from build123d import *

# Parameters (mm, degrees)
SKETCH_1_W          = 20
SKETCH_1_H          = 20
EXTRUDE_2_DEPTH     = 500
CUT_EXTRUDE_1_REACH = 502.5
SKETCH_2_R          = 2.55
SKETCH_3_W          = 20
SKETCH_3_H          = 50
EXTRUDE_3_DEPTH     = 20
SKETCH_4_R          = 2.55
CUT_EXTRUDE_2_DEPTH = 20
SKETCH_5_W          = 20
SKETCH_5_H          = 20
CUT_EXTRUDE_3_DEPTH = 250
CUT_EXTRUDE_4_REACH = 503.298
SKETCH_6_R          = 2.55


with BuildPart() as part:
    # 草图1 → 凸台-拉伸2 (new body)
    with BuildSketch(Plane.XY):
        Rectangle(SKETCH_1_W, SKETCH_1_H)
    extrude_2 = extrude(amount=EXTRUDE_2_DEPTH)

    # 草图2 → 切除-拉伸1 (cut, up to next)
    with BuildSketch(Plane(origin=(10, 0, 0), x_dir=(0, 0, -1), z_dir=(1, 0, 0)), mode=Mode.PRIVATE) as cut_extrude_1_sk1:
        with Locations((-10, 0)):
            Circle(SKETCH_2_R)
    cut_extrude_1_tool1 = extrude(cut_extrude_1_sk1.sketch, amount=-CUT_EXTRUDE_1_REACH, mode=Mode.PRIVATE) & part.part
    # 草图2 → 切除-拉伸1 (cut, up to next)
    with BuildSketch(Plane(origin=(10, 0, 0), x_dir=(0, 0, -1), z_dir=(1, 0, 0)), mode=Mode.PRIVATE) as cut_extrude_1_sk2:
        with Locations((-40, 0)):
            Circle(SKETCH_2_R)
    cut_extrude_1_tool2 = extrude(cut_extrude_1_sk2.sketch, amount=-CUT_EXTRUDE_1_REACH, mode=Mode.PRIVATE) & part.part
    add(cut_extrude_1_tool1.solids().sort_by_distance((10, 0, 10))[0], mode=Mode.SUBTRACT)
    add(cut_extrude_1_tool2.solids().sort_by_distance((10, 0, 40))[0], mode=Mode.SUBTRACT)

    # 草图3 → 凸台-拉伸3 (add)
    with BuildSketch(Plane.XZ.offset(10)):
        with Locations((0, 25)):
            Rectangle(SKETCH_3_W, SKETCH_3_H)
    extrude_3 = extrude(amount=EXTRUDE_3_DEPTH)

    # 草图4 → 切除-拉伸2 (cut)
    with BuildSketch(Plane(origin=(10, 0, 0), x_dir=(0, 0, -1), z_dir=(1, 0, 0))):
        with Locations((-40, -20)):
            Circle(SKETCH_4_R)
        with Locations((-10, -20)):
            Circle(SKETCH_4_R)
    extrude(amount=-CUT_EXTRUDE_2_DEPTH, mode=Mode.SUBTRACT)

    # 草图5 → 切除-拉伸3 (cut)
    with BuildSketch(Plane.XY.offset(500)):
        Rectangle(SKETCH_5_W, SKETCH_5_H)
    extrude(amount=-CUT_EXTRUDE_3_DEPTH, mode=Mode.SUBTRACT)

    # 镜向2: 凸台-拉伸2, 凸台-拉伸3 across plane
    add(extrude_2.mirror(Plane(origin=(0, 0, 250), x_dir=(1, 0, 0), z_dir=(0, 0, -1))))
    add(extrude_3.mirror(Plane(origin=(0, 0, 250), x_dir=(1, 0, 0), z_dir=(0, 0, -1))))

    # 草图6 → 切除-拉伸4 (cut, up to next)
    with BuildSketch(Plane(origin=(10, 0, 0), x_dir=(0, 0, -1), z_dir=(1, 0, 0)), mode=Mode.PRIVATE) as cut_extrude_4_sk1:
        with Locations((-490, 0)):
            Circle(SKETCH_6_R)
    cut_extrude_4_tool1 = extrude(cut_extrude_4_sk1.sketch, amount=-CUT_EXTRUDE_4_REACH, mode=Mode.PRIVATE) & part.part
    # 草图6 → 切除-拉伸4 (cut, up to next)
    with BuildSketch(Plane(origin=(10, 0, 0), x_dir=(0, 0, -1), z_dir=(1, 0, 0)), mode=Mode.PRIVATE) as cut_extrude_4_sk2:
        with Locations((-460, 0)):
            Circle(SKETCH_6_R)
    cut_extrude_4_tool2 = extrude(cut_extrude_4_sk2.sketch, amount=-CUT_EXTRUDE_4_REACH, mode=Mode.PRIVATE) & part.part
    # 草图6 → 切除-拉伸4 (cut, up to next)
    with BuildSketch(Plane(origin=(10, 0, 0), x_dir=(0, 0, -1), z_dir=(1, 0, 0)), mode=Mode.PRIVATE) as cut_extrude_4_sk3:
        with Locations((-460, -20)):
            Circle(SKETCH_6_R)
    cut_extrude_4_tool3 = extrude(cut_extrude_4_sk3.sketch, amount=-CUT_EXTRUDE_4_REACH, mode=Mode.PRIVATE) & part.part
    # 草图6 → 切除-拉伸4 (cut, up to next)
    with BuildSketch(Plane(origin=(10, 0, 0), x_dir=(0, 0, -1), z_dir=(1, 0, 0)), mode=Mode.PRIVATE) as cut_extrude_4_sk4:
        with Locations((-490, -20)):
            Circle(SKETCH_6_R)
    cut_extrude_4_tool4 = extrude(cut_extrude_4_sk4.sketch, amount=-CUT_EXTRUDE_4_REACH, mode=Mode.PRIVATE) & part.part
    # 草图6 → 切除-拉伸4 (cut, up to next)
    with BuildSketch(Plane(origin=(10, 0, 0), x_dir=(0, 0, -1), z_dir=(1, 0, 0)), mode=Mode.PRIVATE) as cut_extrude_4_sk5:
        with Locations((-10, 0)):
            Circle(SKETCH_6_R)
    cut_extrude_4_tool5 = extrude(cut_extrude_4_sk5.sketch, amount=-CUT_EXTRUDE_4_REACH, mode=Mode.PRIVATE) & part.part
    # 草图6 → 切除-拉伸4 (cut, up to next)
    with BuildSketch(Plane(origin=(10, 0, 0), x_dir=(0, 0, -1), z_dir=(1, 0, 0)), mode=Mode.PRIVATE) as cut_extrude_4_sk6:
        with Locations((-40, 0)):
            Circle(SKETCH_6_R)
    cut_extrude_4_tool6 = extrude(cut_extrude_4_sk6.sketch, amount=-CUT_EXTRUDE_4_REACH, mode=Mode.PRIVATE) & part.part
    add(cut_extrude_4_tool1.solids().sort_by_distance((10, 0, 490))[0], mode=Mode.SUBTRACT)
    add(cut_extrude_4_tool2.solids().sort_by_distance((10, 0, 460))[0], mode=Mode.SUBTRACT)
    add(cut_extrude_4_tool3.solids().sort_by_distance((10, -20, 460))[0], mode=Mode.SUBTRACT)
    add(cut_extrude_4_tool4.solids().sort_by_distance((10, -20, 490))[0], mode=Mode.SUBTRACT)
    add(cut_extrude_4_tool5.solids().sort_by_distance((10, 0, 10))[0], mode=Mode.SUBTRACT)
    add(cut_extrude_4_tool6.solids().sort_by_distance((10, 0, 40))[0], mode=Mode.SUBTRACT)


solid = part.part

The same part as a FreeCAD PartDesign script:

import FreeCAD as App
import Part
import Sketcher
from FreeCAD import Vector

doc = App.newDocument("Part")
params = doc.addObject("Spreadsheet::Sheet", "Params")
for row, (alias, value) in enumerate([
    ("sketch1_width", "20 mm"),
    ("pad1_length", "500 mm"),
    ("sketch2_diameter", "5.1 mm"),
    ("sketch3_diameter", "5.1 mm"),
    ("sketch4_width", "20 mm"),
    ("sketch4_height", "50 mm"),
    ("pad2_length", "20 mm"),
    ("sketch5_diameter", "5.1 mm"),
    ("pocket3_length", "20 mm"),
    ("sketch6_width", "20 mm"),
    ("pocket4_length", "250 mm"),
    ("sketch7_diameter", "5.1 mm"),
    ("sketch8_diameter", "5.1 mm"),
    ("sketch9_diameter", "5.1 mm"),
    ("sketch10_diameter", "5.1 mm"),
    ("sketch11_diameter", "5.1 mm"),
    ("sketch12_diameter", "5.1 mm"),
], start=1):
    params.set(f"A{row}", alias)
    params.set(f"B{row}", "=" + value)
    params.setAlias(f"B{row}", alias)

body = doc.addObject("PartDesign::Body", "Body")

sketch1 = body.newObject("Sketcher::SketchObject", "Sketch")
sketch1.AttachmentSupport = (doc.getObject("XY_Plane"), [""])
sketch1.MapMode = "FlatFace"
sketch1.addGeometry([
    Part.LineSegment(Vector(-10, 10, 0), Vector(-10, -10, 0)),
    Part.LineSegment(Vector(-10, -10, 0), Vector(10, -10, 0)),
    Part.LineSegment(Vector(10, -10, 0), Vector(10, 10, 0)),
    Part.LineSegment(Vector(10, 10, 0), Vector(-10, 10, 0)),
], False)
sketch1.addConstraint([
    Sketcher.Constraint("Coincident", 0, 2, 1, 1),
    Sketcher.Constraint("Coincident", 1, 2, 2, 1),
    Sketcher.Constraint("Coincident", 2, 2, 3, 1),
    Sketcher.Constraint("Coincident", 3, 2, 0, 1),
    Sketcher.Constraint("Vertical", 0),
    Sketcher.Constraint("Horizontal", 1),
    Sketcher.Constraint("Vertical", 2),
    Sketcher.Constraint("Horizontal", 3),
    Sketcher.Constraint("Symmetric", 0, 2, 2, 2, -1, 1),
    Sketcher.Constraint("Equal", 3, 0),
    Sketcher.Constraint("DistanceX", 1, 1, 1, 2, 20.0),
])
sketch1.setExpression("Constraints[10]", "Params.sketch1_width")
pad1 = body.newObject("PartDesign::Pad", "Pad")
pad1.Profile = sketch1
pad1.setExpression("Length", "Params.pad1_length")

sketch2 = body.newObject("Sketcher::SketchObject", "Sketch001")
sketch2.AttachmentSupport = (doc.getObject("YZ_Plane"), [""])
sketch2.MapMode = "FlatFace"
sketch2.AttachmentOffset = App.Placement(Vector(0, 0, 10), App.Rotation())
sketch2.addGeometry(Part.Circle(Vector(0, 10, 0), Vector(0, 0, 1), 2.5), False)
sketch2.addConstraint([
    Sketcher.Constraint("PointOnObject", 0, 3, -2),
    Sketcher.Constraint("Diameter", 0, 5.1),
    Sketcher.Constraint("DistanceY", -1, 1, 0, 3, 10.0),
])
sketch2.setExpression("Constraints[1]", "Params.sketch2_diameter")
pocket1 = body.newObject("PartDesign::Pocket", "Pocket")
pocket1.Profile = sketch2
pocket1.Type = "UpToFirst"

sketch3 = body.newObject("Sketcher::SketchObject", "Sketch002")
sketch3.AttachmentSupport = (doc.getObject("YZ_Plane"), [""])
sketch3.MapMode = "FlatFace"
sketch3.AttachmentOffset = App.Placement(Vector(0, 0, 10), App.Rotation())
sketch3.addGeometry(Part.Circle(Vector(0, 40, 0), Vector(0, 0, 1), 2.5), False)
sketch3.addConstraint([
    Sketcher.Constraint("PointOnObject", 0, 3, -2),
    Sketcher.Constraint("Diameter", 0, 5.1),
    Sketcher.Constraint("DistanceY", -1, 1, 0, 3, 40.0),
])
sketch3.setExpression("Constraints[1]", "Params.sketch3_diameter")
pocket2 = body.newObject("PartDesign::Pocket", "Pocket001")
pocket2.Profile = sketch3
pocket2.Type = "UpToFirst"

sketch4 = body.newObject("Sketcher::SketchObject", "Sketch003")
sketch4.AttachmentSupport = (doc.getObject("XZ_Plane"), [""])
sketch4.MapMode = "FlatFace"
sketch4.AttachmentOffset = App.Placement(Vector(0, 0, 10), App.Rotation())
sketch4.addGeometry([
    Part.LineSegment(Vector(-10, 50, 0), Vector(-10, 0, 0)),
    Part.LineSegment(Vector(-10, 0, 0), Vector(10, 0, 0)),
    Part.LineSegment(Vector(10, 0, 0), Vector(10, 50, 0)),
    Part.LineSegment(Vector(10, 50, 0), Vector(-10, 50, 0)),
], False)
sketch4.addConstraint([
    Sketcher.Constraint("Coincident", 0, 2, 1, 1),
    Sketcher.Constraint("Coincident", 1, 2, 2, 1),
    Sketcher.Constraint("Coincident", 2, 2, 3, 1),
    Sketcher.Constraint("Coincident", 3, 2, 0, 1),
    Sketcher.Constraint("Vertical", 0),
    Sketcher.Constraint("Horizontal", 1),
    Sketcher.Constraint("Vertical", 2),
    Sketcher.Constraint("Horizontal", 3),
    Sketcher.Constraint("Symmetric", 0, 2, 1, 2, -1, 1),
    Sketcher.Constraint("DistanceX", 1, 1, 1, 2, 20.0),
    Sketcher.Constraint("DistanceY", 0, 2, 0, 1, 50.0),
])
sketch4.setExpression("Constraints[9]", "Params.sketch4_width")
sketch4.setExpression("Constraints[10]", "Params.sketch4_height")
pad2 = body.newObject("PartDesign::Pad", "Pad001")
pad2.Profile = sketch4
pad2.setExpression("Length", "Params.pad2_length")

sketch5 = body.newObject("Sketcher::SketchObject", "Sketch004")
sketch5.AttachmentSupport = (doc.getObject("YZ_Plane"), [""])
sketch5.MapMode = "FlatFace"
sketch5.AttachmentOffset = App.Placement(Vector(0, 0, 10), App.Rotation())
sketch5.addGeometry([
    Part.Circle(Vector(-20, 40, 0), Vector(0, 0, 1), 2.5),
    Part.Circle(Vector(-20, 10, 0), Vector(0, 0, 1), 2.5),
], False)
sketch5.addConstraint([
    Sketcher.Constraint("Equal", 0, 1),
    Sketcher.Constraint("Vertical", 0, 3, 1, 3),
    Sketcher.Constraint("Diameter", 0, 5.1),
    Sketcher.Constraint("DistanceX", 0, 3, -1, 1, 20.0),
    Sketcher.Constraint("DistanceY", -1, 1, 0, 3, 40.0),
    Sketcher.Constraint("DistanceY", -1, 1, 1, 3, 10.0),
])
sketch5.setExpression("Constraints[2]", "Params.sketch5_diameter")
pocket3 = body.newObject("PartDesign::Pocket", "Pocket002")
pocket3.Profile = sketch5
pocket3.setExpression("Length", "Params.pocket3_length")

sketch6 = body.newObject("Sketcher::SketchObject", "Sketch005")
sketch6.AttachmentSupport = (doc.getObject("XY_Plane"), [""])
sketch6.MapMode = "FlatFace"
sketch6.AttachmentOffset = App.Placement(Vector(0, 0, 500), App.Rotation())
sketch6.addGeometry([
    Part.LineSegment(Vector(-10, 10, 0), Vector(-10, -10, 0)),
    Part.LineSegment(Vector(-10, -10, 0), Vector(10, -10, 0)),
    Part.LineSegment(Vector(10, -10, 0), Vector(10, 10, 0)),
    Part.LineSegment(Vector(10, 10, 0), Vector(-10, 10, 0)),
], False)
sketch6.addConstraint([
    Sketcher.Constraint("Coincident", 0, 2, 1, 1),
    Sketcher.Constraint("Coincident", 1, 2, 2, 1),
    Sketcher.Constraint("Coincident", 2, 2, 3, 1),
    Sketcher.Constraint("Coincident", 3, 2, 0, 1),
    Sketcher.Constraint("Vertical", 0),
    Sketcher.Constraint("Horizontal", 1),
    Sketcher.Constraint("Vertical", 2),
    Sketcher.Constraint("Horizontal", 3),
    Sketcher.Constraint("Symmetric", 0, 2, 2, 2, -1, 1),
    Sketcher.Constraint("Equal", 3, 0),
    Sketcher.Constraint("DistanceX", 1, 1, 1, 2, 20.0),
])
sketch6.setExpression("Constraints[10]", "Params.sketch6_width")
pocket4 = body.newObject("PartDesign::Pocket", "Pocket003")
pocket4.Profile = sketch6
pocket4.setExpression("Length", "Params.pocket4_length")
doc.recompute()

datumplane = body.newObject("PartDesign::Plane", "DatumPlane")
datumplane.AttachmentSupport = (doc.getObject("XY_Plane"), [""])
datumplane.MapMode = "FlatFace"
datumplane.AttachmentOffset = App.Placement(Vector(0, 0, 250), App.Rotation())
mirrored = body.newObject("PartDesign::Mirrored", "Mirrored")
mirrored.Originals = [pad1, pad2]
mirrored.MirrorPlane = (datumplane, [""])
body.Tip = mirrored

sketch7 = body.newObject("Sketcher::SketchObject", "Sketch006")
sketch7.AttachmentSupport = (doc.getObject("YZ_Plane"), [""])
sketch7.MapMode = "FlatFace"
sketch7.AttachmentOffset = App.Placement(Vector(0, 0, 10), App.Rotation())
sketch7.addGeometry(Part.Circle(Vector(0, 490, 0), Vector(0, 0, 1), 2.5), False)
sketch7.addConstraint([
    Sketcher.Constraint("PointOnObject", 0, 3, -2),
    Sketcher.Constraint("Diameter", 0, 5.1),
    Sketcher.Constraint("DistanceY", -1, 1, 0, 3, 490.0),
])
sketch7.setExpression("Constraints[1]", "Params.sketch7_diameter")
pocket5 = body.newObject("PartDesign::Pocket", "Pocket004")
pocket5.Profile = sketch7
pocket5.Type = "UpToFirst"

sketch8 = body.newObject("Sketcher::SketchObject", "Sketch007")
sketch8.AttachmentSupport = (doc.getObject("YZ_Plane"), [""])
sketch8.MapMode = "FlatFace"
sketch8.AttachmentOffset = App.Placement(Vector(0, 0, 10), App.Rotation())
sketch8.addGeometry(Part.Circle(Vector(0, 460, 0), Vector(0, 0, 1), 2.5), False)
sketch8.addConstraint([
    Sketcher.Constraint("PointOnObject", 0, 3, -2),
    Sketcher.Constraint("Diameter", 0, 5.1),
    Sketcher.Constraint("DistanceY", -1, 1, 0, 3, 460.0),
])
sketch8.setExpression("Constraints[1]", "Params.sketch8_diameter")
pocket6 = body.newObject("PartDesign::Pocket", "Pocket005")
pocket6.Profile = sketch8
pocket6.Type = "UpToFirst"

sketch9 = body.newObject("Sketcher::SketchObject", "Sketch008")
sketch9.AttachmentSupport = (doc.getObject("YZ_Plane"), [""])
sketch9.MapMode = "FlatFace"
sketch9.AttachmentOffset = App.Placement(Vector(0, 0, 10), App.Rotation())
sketch9.addGeometry(Part.Circle(Vector(-20, 460, 0), Vector(0, 0, 1), 2.5), False)
sketch9.addConstraint([
    Sketcher.Constraint("Diameter", 0, 5.1),
    Sketcher.Constraint("DistanceX", 0, 3, -1, 1, 20.0),
    Sketcher.Constraint("DistanceY", -1, 1, 0, 3, 460.0),
])
sketch9.setExpression("Constraints[0]", "Params.sketch9_diameter")
pocket7 = body.newObject("PartDesign::Pocket", "Pocket006")
pocket7.Profile = sketch9
pocket7.Type = "UpToFirst"

sketch10 = body.newObject("Sketcher::SketchObject", "Sketch009")
sketch10.AttachmentSupport = (doc.getObject("YZ_Plane"), [""])
sketch10.MapMode = "FlatFace"
sketch10.AttachmentOffset = App.Placement(Vector(0, 0, 10), App.Rotation())
sketch10.addGeometry(Part.Circle(Vector(-20, 490, 0), Vector(0, 0, 1), 2.5), False)
sketch10.addConstraint([
    Sketcher.Constraint("Diameter", 0, 5.1),
    Sketcher.Constraint("DistanceX", 0, 3, -1, 1, 20.0),
    Sketcher.Constraint("DistanceY", -1, 1, 0, 3, 490.0),
])
sketch10.setExpression("Constraints[0]", "Params.sketch10_diameter")
pocket8 = body.newObject("PartDesign::Pocket", "Pocket007")
pocket8.Profile = sketch10
pocket8.Type = "UpToFirst"

sketch11 = body.newObject("Sketcher::SketchObject", "Sketch010")
sketch11.AttachmentSupport = (doc.getObject("YZ_Plane"), [""])
sketch11.MapMode = "FlatFace"
sketch11.AttachmentOffset = App.Placement(Vector(0, 0, 10), App.Rotation())
sketch11.addGeometry(Part.Circle(Vector(0, 10, 0), Vector(0, 0, 1), 2.5), False)
sketch11.addConstraint([
    Sketcher.Constraint("PointOnObject", 0, 3, -2),
    Sketcher.Constraint("Diameter", 0, 5.1),
    Sketcher.Constraint("DistanceY", -1, 1, 0, 3, 10.0),
])
sketch11.setExpression("Constraints[1]", "Params.sketch11_diameter")
pocket9 = body.newObject("PartDesign::Pocket", "Pocket008")
pocket9.Profile = sketch11
pocket9.Type = "UpToFirst"

sketch12 = body.newObject("Sketcher::SketchObject", "Sketch011")
sketch12.AttachmentSupport = (doc.getObject("YZ_Plane"), [""])
sketch12.MapMode = "FlatFace"
sketch12.AttachmentOffset = App.Placement(Vector(0, 0, 10), App.Rotation())
sketch12.addGeometry(Part.Circle(Vector(0, 40, 0), Vector(0, 0, 1), 2.5), False)
sketch12.addConstraint([
    Sketcher.Constraint("PointOnObject", 0, 3, -2),
    Sketcher.Constraint("Diameter", 0, 5.1),
    Sketcher.Constraint("DistanceY", -1, 1, 0, 3, 40.0),
])
sketch12.setExpression("Constraints[1]", "Params.sketch12_diameter")
pocket10 = body.newObject("PartDesign::Pocket", "Pocket009")
pocket10.Profile = sketch12
pocket10.Type = "UpToFirst"

doc.recompute()
